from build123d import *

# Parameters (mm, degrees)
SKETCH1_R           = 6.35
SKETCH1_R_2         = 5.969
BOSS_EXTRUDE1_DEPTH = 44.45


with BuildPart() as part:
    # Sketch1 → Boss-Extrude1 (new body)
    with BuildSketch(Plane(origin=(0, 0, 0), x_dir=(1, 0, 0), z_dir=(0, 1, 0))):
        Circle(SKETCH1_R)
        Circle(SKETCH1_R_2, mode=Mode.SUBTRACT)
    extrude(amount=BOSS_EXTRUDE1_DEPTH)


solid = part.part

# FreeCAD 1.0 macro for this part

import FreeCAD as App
import Part
import Sketcher
from FreeCAD import Vector
Q = App.Units.Quantity

doc = App.newDocument("Part")
params = doc.addObject("Spreadsheet::Sheet", "Params")
for row, (alias, value) in enumerate([
    ("sketch1_diameter", "0.5 in"),
    ("sketch1_diameter2", "0.47 in"),
    ("pad1_length", "1.75 in"),
], start=1):
    params.set(f"A{row}", alias)
    params.set(f"B{row}", "=" + value)
    params.setAlias(f"B{row}", alias)

body = doc.addObject("PartDesign::Body", "Body")

# Sketch on XZ plane
sketch1 = body.newObject("Sketcher::SketchObject", "Sketch")
sketch1.AttachmentSupport = (doc.getObject("XZ_Plane"), [""])
sketch1.MapMode = "FlatFace"
sketch1.addGeometry(Part.Circle(Vector(0, 0, 0), Vector(0, 0, 1), 6.35), False)
sketch1.addGeometry(Part.Circle(Vector(0, 0, 0), Vector(0, 0, 1), 5.969), False)
sketch1.addConstraint(Sketcher.Constraint("Coincident", 0, 3, -1, 1))
sketch1.addConstraint(Sketcher.Constraint("Coincident", 1, 3, -1, 1))
sketch1.addConstraint(Sketcher.Constraint("Diameter", 0, Q("0.5 in")))
sketch1.addConstraint(Sketcher.Constraint("Diameter", 1, Q("0.47 in")))
sketch1.setExpression("Constraints[2]", "Params.sketch1_diameter")
sketch1.setExpression("Constraints[3]", "Params.sketch1_diameter2")
pad1 = body.newObject("PartDesign::Pad", "Pad")
pad1.Profile = sketch1
pad1.setExpression("Length", "Params.pad1_length")
pad1.Reversed = True

doc.recompute()
